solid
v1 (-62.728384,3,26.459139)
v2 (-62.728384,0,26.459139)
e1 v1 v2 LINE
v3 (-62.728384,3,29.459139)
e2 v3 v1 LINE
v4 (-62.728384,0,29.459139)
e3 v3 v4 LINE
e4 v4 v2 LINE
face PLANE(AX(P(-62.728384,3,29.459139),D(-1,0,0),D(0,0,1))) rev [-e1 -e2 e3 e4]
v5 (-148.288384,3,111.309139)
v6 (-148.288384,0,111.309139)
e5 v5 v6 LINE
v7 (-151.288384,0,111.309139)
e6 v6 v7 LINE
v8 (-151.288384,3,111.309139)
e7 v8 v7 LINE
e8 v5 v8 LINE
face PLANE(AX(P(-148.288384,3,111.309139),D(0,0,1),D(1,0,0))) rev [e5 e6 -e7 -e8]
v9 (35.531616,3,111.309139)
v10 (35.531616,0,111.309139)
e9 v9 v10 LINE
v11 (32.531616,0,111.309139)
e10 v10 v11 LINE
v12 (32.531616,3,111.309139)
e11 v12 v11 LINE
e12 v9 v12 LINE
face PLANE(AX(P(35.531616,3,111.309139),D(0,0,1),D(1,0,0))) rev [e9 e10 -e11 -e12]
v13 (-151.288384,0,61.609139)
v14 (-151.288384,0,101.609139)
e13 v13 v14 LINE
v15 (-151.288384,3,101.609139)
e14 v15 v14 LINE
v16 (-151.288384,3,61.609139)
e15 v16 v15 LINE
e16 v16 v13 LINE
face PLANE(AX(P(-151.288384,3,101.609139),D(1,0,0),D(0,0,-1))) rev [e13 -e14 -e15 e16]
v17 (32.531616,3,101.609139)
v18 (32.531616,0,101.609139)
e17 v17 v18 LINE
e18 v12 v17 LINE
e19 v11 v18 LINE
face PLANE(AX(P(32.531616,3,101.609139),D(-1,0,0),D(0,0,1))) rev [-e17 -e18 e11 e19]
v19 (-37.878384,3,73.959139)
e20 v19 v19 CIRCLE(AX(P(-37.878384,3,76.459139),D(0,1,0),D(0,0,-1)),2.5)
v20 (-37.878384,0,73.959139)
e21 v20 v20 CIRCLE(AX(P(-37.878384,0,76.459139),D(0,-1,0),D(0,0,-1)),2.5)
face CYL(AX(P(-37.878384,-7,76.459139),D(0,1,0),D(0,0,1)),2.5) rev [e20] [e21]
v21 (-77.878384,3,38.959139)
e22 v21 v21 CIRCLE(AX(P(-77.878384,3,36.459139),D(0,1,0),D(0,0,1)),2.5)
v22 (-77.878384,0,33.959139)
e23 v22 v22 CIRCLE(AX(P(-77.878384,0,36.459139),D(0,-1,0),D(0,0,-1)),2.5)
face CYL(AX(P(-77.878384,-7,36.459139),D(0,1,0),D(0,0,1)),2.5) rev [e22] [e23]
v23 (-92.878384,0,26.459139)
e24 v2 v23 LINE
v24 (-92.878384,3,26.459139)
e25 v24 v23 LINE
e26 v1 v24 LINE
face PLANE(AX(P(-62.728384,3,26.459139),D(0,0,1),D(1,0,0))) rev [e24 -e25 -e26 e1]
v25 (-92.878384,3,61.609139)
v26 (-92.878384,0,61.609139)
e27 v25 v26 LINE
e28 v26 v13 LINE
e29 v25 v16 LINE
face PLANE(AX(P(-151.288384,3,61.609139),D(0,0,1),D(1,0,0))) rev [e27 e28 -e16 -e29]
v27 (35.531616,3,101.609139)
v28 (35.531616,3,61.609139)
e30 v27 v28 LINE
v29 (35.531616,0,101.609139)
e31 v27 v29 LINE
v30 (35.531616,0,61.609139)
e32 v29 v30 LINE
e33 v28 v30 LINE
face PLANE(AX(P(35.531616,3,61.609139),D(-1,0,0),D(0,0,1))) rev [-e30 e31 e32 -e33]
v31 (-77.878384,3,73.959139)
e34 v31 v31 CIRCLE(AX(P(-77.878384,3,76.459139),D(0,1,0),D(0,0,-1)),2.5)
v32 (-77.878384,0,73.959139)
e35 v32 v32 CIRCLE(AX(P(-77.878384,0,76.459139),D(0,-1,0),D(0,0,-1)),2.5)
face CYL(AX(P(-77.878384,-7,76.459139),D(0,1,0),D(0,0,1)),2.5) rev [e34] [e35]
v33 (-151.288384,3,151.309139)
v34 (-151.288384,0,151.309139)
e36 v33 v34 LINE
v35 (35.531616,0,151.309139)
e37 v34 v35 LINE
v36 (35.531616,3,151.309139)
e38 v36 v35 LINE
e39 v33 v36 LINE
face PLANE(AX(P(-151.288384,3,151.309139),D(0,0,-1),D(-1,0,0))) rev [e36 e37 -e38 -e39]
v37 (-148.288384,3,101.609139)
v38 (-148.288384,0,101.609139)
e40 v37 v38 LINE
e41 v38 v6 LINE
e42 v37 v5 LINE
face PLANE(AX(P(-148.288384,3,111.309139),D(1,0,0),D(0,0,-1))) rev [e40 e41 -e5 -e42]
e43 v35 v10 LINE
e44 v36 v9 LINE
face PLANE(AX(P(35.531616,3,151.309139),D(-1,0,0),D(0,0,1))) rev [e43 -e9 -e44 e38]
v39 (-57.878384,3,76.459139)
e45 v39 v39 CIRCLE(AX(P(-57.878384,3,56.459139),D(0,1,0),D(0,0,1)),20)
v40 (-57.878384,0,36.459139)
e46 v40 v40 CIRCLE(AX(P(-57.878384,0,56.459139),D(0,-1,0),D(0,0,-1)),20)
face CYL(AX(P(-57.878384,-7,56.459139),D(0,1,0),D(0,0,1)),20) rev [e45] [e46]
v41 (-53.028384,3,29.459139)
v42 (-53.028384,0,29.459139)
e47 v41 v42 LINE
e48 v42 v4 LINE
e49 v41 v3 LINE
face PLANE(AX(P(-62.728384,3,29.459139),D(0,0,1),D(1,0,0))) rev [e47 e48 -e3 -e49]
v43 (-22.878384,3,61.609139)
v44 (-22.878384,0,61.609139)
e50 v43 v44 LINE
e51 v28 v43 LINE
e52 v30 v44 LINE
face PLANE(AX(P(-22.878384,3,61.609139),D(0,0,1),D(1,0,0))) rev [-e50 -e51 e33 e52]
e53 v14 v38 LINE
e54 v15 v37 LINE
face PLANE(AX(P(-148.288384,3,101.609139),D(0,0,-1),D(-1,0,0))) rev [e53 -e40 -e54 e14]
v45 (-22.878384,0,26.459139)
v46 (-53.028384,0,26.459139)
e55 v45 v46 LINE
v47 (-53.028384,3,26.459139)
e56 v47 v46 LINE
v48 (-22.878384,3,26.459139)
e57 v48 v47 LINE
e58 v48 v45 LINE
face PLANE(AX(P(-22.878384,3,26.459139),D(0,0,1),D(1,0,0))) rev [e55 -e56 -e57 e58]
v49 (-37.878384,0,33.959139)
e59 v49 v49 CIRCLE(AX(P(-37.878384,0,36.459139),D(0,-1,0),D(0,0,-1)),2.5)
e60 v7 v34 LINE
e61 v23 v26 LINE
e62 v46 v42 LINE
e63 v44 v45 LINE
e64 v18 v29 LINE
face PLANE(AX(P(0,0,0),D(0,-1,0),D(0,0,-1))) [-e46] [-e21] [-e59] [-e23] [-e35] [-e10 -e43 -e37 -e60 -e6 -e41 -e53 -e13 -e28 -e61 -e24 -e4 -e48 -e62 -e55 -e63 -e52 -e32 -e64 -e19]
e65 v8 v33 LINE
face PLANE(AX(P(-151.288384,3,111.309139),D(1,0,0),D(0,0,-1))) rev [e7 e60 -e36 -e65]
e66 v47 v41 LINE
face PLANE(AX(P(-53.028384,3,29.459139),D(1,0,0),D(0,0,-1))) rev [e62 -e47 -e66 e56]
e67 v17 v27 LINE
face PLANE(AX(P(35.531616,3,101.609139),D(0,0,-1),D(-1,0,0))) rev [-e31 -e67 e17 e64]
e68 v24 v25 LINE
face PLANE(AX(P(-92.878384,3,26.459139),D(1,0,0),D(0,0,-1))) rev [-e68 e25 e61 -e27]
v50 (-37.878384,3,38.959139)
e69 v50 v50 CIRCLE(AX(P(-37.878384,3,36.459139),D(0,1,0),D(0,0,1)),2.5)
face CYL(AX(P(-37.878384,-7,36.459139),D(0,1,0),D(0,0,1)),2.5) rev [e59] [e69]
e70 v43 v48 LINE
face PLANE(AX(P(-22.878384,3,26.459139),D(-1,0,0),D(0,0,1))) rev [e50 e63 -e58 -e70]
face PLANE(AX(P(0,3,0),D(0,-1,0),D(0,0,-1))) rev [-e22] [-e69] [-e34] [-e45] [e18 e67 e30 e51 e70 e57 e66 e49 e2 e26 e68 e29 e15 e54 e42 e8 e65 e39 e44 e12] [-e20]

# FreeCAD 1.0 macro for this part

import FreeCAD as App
import Part
import Sketcher

V = App.Vector
Q = App.Units.Quantity

doc = App.newDocument("Part")
params = doc.addObject("Spreadsheet::Sheet", "Params")
for row, (alias, value) in enumerate([
    ("sketch1_width", "3 mm"),
    ("sketch1_height", "40 mm"),
    ("sketch1_width2", "9.7 mm"),
    ("sketch1_width3", "186.82 mm"),
    ("sketch1_height2", "35.15 mm"),
    ("pad1_length", "3 mm"),
    ("sketch2_diameter", "5 mm"),
    ("sketch2_diameter2", "40 mm"),
    ("pocket1_length", "10 mm"),
], start=1):
    params.set(f"A{row}", alias)
    params.set(f"B{row}", "=" + value)
    params.setAlias(f"B{row}", alias)

body = doc.addObject("PartDesign::Body", "Body")

sketch1 = body.newObject("Sketcher::SketchObject", "Sketch")
sketch1.AttachmentSupport = (doc.getObject("XZ_Plane"), [""])
sketch1.MapMode = "FlatFace"
sketch1.addGeometry(Part.LineSegment(V(-148.3, 101.6, 0), V(-148.3, 111.3, 0)), False)
sketch1.addGeometry(Part.LineSegment(V(-148.3, 111.3, 0), V(-151.3, 111.3, 0)), False)
sketch1.addGeometry(Part.LineSegment(V(-151.3, 111.3, 0), V(-151.3, 151.3, 0)), False)
sketch1.addGeometry(Part.LineSegment(V(-151.3, 151.3, 0), V(35.5, 151.3, 0)), False)
sketch1.addGeometry(Part.LineSegment(V(35.5, 151.3, 0), V(35.5, 111.3, 0)), False)
sketch1.addGeometry(Part.LineSegment(V(35.5, 111.3, 0), V(32.5, 111.3, 0)), False)
sketch1.addGeometry(Part.LineSegment(V(32.5, 111.3, 0), V(32.5, 101.6, 0)), False)
sketch1.addGeometry(Part.LineSegment(V(32.5, 101.6, 0), V(35.5, 101.6, 0)), False)
sketch1.addGeometry(Part.LineSegment(V(35.5, 101.6, 0), V(35.5, 61.6, 0)), False)
sketch1.addGeometry(Part.LineSegment(V(35.5, 61.6, 0), V(-22.9, 61.6, 0)), False)
sketch1.addGeometry(Part.LineSegment(V(-22.9, 61.6, 0), V(-22.9, 26.5, 0)), False)
sketch1.addGeometry(Part.LineSegment(V(-22.9, 26.5, 0), V(-53, 26.5, 0)), False)
sketch1.addGeometry(Part.LineSegment(V(-53, 26.5, 0), V(-53, 29.5, 0)), False)
sketch1.addGeometry(Part.LineSegment(V(-53, 29.5, 0), V(-62.7, 29.5, 0)), False)
sketch1.addGeometry(Part.LineSegment(V(-62.7, 29.5, 0), V(-62.7, 26.5, 0)), False)
sketch1.addGeometry(Part.LineSegment(V(-62.7, 26.5, 0), V(-92.9, 26.5, 0)), False)
sketch1.addGeometry(Part.LineSegment(V(-92.9, 26.5, 0), V(-92.9, 61.6, 0)), False)
sketch1.addGeometry(Part.LineSegment(V(-92.9, 61.6, 0), V(-151.3, 61.6, 0)), False)
sketch1.addGeometry(Part.LineSegment(V(-151.3, 61.6, 0), V(-151.3, 101.6, 0)), False)
sketch1.addGeometry(Part.LineSegment(V(-151.3, 101.6, 0), V(-148.3, 101.6, 0)), False)
sketch1.addConstraint(Sketcher.Constraint("Coincident", 0, 2, 1, 1))
sketch1.addConstraint(Sketcher.Constraint("Coincident", 1, 2, 2, 1))
sketch1.addConstraint(Sketcher.Constraint("Coincident", 2, 2, 3, 1))
sketch1.addConstraint(Sketcher.Constraint("Coincident", 3, 2, 4, 1))
sketch1.addConstraint(Sketcher.Constraint("Coincident", 4, 2, 5, 1))
sketch1.addConstraint(Sketcher.Constraint("Coincident", 5, 2, 6, 1))
sketch1.addConstraint(Sketcher.Constraint("Coincident", 6, 2, 7, 1))
sketch1.addConstraint(Sketcher.Constraint("Coincident", 7, 2, 8, 1))
sketch1.addConstraint(Sketcher.Constraint("Coincident", 8, 2, 9, 1))
sketch1.addConstraint(Sketcher.Constraint("Coincident", 9, 2, 10, 1))
sketch1.addConstraint(Sketcher.Constraint("Coincident", 10, 2, 11, 1))
sketch1.addConstraint(Sketcher.Constraint("Coincident", 11, 2, 12, 1))
sketch1.addConstraint(Sketcher.Constraint("Coincident", 12, 2, 13, 1))
sketch1.addConstraint(Sketcher.Constraint("Coincident", 13, 2, 14, 1))
sketch1.addConstraint(Sketcher.Constraint("Coincident", 14, 2, 15, 1))
sketch1.addConstraint(Sketcher.Constraint("Coincident", 15, 2, 16, 1))
sketch1.addConstraint(Sketcher.Constraint("Coincident", 16, 2, 17, 1))
sketch1.addConstraint(Sketcher.Constraint("Coincident", 17, 2, 18, 1))
sketch1.addConstraint(Sketcher.Constraint("Coincident", 18, 2, 19, 1))
sketch1.addConstraint(Sketcher.Constraint("Coincident", 19, 2, 0, 1))
sketch1.addConstraint(Sketcher.Constraint("Vertical", 0))
sketch1.addConstraint(Sketcher.Constraint("Horizontal", 1))
sketch1.addConstraint(Sketcher.Constraint("Vertical", 2))
sketch1.addConstraint(Sketcher.Constraint("Horizontal", 3))
sketch1.addConstraint(Sketcher.Constraint("Vertical", 4))
sketch1.addConstraint(Sketcher.Constraint("Horizontal", 5))
sketch1.addConstraint(Sketcher.Constraint("Vertical", 6))
sketch1.addConstraint(Sketcher.Constraint("Horizontal", 7))
sketch1.addConstraint(Sketcher.Constraint("Vertical", 8))
sketch1.addConstraint(Sketcher.Constraint("Horizontal", 9))
sketch1.addConstraint(Sketcher.Constraint("Vertical", 10))
sketch1.addConstraint(Sketcher.Constraint("Horizontal", 11))
sketch1.addConstraint(Sketcher.Constraint("Vertical", 12))
sketch1.addConstraint(Sketcher.Constraint("Horizontal", 13))
sketch1.addConstraint(Sketcher.Constraint("Vertical", 14))
sketch1.addConstraint(Sketcher.Constraint("Horizontal", 15))
sketch1.addConstraint(Sketcher.Constraint("Vertical", 16))
sketch1.addConstraint(Sketcher.Constraint("Horizontal", 17))
sketch1.addConstraint(Sketcher.Constraint("Vertical", 18))
sketch1.addConstraint(Sketcher.Constraint("Horizontal", 19))
sketch1.addConstraint(Sketcher.Constraint("Horizontal", 1, 2, 4, 2))
sketch1.addConstraint(Sketcher.Constraint("Horizontal", 11, 2, 14, 2))
sketch1.addConstraint(Sketcher.Constraint("Horizontal", 9, 2, 16, 2))
sketch1.addConstraint(Sketcher.Constraint("Horizontal", 7, 2, 18, 2))
sketch1.addConstraint(Sketcher.Constraint("Vertical", 4, 2, 7, 2))
sketch1.addConstraint(Sketcher.Constraint("Vertical", 2, 2, 17, 2))
sketch1.addConstraint(Sketcher.Constraint("Equal", 1, 5))
sketch1.addConstraint(Sketcher.Constraint("Equal", 11, 15))
sketch1.addConstraint(Sketcher.Constraint("Equal", 9, 17))
sketch1.addConstraint(Sketcher.Constraint("Equal", 13, 0))
sketch1.addConstraint(Sketcher.Constraint("Equal", 4, 8))
sketch1.addConstraint(Sketcher.Constraint("Equal", 19, 12))
sketch1.addConstraint(Sketcher.Constraint("DistanceX", 1, 2, 1, 1, Q("3 mm")))
sketch1.addConstraint(Sketcher.Constraint("DistanceY", 2, 1, 2, 2, Q("40 mm")))
sketch1.addConstraint(Sketcher.Constraint("DistanceX", 13, 2, 13, 1, Q("9.7 mm")))
sketch1.addConstraint(Sketcher.Constraint("DistanceX", 15, 2, 10, 2, Q("70 mm")))
sketch1.addConstraint(Sketcher.Constraint("DistanceX", 3, 1, 3, 2, Q("186.82 mm")))
sketch1.addConstraint(Sketcher.Constraint("DistanceY", 10, 2, 10, 1, Q("35.15 mm")))
sketch1.addConstraint(Sketcher.Constraint("DistanceY", -1, 1, 0, 2, Q("111.309139 mm")))
sketch1.addConstraint(Sketcher.Constraint("DistanceX", 0, 2, -1, 1, Q("148.288384 mm")))
sketch1.setExpression("Constraints[52]", "Params.sketch1_width")
sketch1.setExpression("Constraints[53]", "Params.sketch1_height")
sketch1.setExpression("Constraints[54]", "Params.sketch1_width2")
sketch1.setExpression("Constraints[56]", "Params.sketch1_width3")
sketch1.setExpression("Constraints[57]", "Params.sketch1_height2")
pad1 = body.newObject("PartDesign::Pad", "Pad")
pad1.Profile = sketch1
pad1.setExpression("Length", "Params.pad1_length")
pad1.Reversed = True

sketch2 = body.newObject("Sketcher::SketchObject", "Sketch001")
sketch2.AttachmentSupport = (doc.getObject("XZ_Plane"), [""])
sketch2.MapMode = "FlatFace"
sketch2.AttachmentOffset = App.Placement(V(0, 0, -3), App.Rotation())
sketch2.addGeometry(Part.Circle(V(-77.9, 36.5, 0), V(0, 0, 1), 2.5), False)
sketch2.addGeometry(Part.Circle(V(-37.9, 36.5, 0), V(0, 0, 1), 2.5), False)
sketch2.addGeometry(Part.Circle(V(-37.9, 76.5, 0), V(0, 0, 1), 2.5), False)
sketch2.addGeometry(Part.Circle(V(-77.9, 76.5, 0), V(0, 0, 1), 2.5), False)
sketch2.addGeometry(Part.Circle(V(-57.9, 56.5, 0), V(0, 0, 1), 20), False)
sketch2.addConstraint(Sketcher.Constraint("Equal", 0, 1))
sketch2.addConstraint(Sketcher.Constraint("Equal", 1, 2))
sketch2.addConstraint(Sketcher.Constraint("Equal", 2, 3))
sketch2.addConstraint(Sketcher.Constraint("Horizontal", 0, 3, 1, 3))
sketch2.addConstraint(Sketcher.Constraint("Horizontal", 2, 3, 3, 3))
sketch2.addConstraint(Sketcher.Constraint("Vertical", 1, 3, 2, 3))
sketch2.addConstraint(Sketcher.Constraint("Vertical", 0, 3, 3, 3))
sketch2.addConstraint(Sketcher.Constraint("Diameter", 0, Q("5 mm")))
sketch2.addConstraint(Sketcher.Constraint("Diameter", 4, Q("40 mm")))
sketch2.addConstraint(Sketcher.Constraint("DistanceX", 0, 3, 1, 3, Q("40 mm")))
sketch2.addConstraint(Sketcher.Constraint("DistanceY", 1, 3, 2, 3, Q("40 mm")))
sketch2.addConstraint(Sketcher.Constraint("DistanceX", 0, 3, 4, 3, Q("20 mm")))
sketch2.addConstraint(Sketcher.Constraint("DistanceY", 0, 3, 4, 3, Q("20 mm")))
sketch2.addConstraint(Sketcher.Constraint("DistanceY", -1, 1, 0, 3, Q("36.459139 mm")))
sketch2.addConstraint(Sketcher.Constraint("DistanceX", 0, 3, -1, 1, Q("77.878384 mm")))
sketch2.setExpression("Constraints[7]", "Params.sketch2_diameter")
sketch2.setExpression("Constraints[8]", "Params.sketch2_diameter2")
pocket1 = body.newObject("PartDesign::Pocket", "Pocket")
pocket1.Profile = sketch2
pocket1.setExpression("Length", "Params.pocket1_length")
pocket1.Reversed = True

doc.recompute()
